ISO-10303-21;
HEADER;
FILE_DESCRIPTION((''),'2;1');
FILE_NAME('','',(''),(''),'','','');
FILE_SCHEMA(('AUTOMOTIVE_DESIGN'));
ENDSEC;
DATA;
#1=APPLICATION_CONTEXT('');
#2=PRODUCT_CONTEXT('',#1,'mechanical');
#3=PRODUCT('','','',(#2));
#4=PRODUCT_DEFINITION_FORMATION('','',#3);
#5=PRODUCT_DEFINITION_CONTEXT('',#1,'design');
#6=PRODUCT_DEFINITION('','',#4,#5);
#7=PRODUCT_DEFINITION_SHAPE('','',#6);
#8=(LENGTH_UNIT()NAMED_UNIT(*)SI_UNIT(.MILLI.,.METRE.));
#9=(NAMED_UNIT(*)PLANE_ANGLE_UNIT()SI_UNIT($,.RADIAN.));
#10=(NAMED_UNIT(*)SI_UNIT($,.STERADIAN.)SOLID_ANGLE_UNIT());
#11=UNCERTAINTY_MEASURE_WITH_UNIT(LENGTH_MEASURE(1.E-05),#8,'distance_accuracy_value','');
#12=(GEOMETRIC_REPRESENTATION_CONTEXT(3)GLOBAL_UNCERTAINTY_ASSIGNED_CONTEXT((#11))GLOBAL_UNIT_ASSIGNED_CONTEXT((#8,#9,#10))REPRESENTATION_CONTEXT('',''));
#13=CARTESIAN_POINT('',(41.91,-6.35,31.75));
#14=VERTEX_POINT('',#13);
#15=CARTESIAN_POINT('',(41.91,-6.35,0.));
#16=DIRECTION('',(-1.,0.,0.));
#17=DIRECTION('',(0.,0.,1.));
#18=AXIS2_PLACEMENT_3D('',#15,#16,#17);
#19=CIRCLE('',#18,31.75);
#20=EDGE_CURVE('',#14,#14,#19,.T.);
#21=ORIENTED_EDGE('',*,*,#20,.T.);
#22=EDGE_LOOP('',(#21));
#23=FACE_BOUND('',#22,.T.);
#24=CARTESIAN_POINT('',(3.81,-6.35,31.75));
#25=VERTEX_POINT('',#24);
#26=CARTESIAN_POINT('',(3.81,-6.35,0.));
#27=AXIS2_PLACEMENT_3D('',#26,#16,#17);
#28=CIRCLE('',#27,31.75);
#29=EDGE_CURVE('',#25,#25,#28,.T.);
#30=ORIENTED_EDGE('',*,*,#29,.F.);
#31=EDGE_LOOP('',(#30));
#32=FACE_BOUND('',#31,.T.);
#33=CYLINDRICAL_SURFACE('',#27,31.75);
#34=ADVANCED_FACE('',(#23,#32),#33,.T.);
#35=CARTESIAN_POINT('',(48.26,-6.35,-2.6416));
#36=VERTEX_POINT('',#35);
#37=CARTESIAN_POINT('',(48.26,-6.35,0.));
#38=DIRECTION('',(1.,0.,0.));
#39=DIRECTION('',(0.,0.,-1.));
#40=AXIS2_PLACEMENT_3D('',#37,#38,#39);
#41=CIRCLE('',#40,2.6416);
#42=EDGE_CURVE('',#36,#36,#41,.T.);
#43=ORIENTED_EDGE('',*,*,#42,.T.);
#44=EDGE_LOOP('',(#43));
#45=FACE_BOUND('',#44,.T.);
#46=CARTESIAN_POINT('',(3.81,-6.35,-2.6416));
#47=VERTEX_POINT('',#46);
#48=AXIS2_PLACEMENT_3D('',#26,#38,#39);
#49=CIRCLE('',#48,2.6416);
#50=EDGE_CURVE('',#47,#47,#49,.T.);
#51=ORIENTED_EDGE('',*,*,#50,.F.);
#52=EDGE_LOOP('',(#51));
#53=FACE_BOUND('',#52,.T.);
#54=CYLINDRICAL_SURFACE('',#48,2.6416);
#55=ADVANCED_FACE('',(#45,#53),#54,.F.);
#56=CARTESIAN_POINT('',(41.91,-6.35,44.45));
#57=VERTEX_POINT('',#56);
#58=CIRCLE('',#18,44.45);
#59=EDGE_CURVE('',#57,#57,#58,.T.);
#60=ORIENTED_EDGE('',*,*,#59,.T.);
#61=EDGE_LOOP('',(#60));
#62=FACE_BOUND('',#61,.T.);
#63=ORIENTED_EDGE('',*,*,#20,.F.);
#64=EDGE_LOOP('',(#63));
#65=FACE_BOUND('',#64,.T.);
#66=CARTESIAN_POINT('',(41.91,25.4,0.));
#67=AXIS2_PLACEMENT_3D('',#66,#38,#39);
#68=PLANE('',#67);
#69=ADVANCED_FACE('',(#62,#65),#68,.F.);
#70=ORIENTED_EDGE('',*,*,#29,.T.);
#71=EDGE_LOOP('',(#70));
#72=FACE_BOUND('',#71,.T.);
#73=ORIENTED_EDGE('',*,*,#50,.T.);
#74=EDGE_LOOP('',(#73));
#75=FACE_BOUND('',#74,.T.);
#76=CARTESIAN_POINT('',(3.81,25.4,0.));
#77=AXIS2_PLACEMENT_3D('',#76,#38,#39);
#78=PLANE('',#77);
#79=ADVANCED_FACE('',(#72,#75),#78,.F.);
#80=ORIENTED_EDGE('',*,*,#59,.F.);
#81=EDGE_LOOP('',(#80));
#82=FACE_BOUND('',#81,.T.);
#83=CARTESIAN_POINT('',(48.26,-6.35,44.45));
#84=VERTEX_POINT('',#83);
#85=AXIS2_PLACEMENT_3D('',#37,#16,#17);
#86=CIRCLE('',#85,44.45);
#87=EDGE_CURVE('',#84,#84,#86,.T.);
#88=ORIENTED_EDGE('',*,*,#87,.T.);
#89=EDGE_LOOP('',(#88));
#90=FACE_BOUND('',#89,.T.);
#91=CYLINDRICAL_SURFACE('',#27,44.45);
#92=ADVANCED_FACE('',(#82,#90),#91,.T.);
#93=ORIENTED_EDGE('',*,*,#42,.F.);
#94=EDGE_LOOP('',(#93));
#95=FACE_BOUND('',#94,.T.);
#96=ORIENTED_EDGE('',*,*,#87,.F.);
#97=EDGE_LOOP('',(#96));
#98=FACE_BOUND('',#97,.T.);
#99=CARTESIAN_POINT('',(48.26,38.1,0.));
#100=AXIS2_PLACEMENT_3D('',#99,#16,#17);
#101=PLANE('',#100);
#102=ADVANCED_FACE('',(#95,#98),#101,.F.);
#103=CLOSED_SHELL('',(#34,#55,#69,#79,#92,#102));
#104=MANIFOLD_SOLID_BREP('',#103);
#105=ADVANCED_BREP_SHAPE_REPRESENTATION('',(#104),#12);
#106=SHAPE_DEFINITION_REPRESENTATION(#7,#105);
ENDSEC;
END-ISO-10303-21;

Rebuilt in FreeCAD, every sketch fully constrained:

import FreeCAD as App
import Part
import Sketcher
from FreeCAD import Vector
Q = App.Units.Quantity

doc = App.newDocument("Part")
body = doc.addObject("PartDesign::Body", "Body")

# Sketch on XY plane
sketch1 = body.newObject("Sketcher::SketchObject", "Sketch")
sketch1.AttachmentSupport = (doc.getObject("XY_Plane"), [""])
sketch1.MapMode = "FlatFace"
sketch1.addGeometry(Part.LineSegment(Vector(41.91, 25.4, 0), Vector(3.81, 25.4, 0)), False)
sketch1.addGeometry(Part.LineSegment(Vector(3.81, 25.4, 0), Vector(3.81, -6.35, 0)), False)
sketch1.addGeometry(Part.LineSegment(Vector(3.81, -6.35, 0), Vector(48.26, -6.35, 0)), False)
sketch1.addGeometry(Part.LineSegment(Vector(48.26, -6.35, 0), Vector(48.26, 38.1, 0)), False)
sketch1.addGeometry(Part.LineSegment(Vector(48.26, 38.1, 0), Vector(41.91, 38.1, 0)), False)
sketch1.addGeometry(Part.LineSegment(Vector(41.91, 38.1, 0), Vector(41.91, 25.4, 0)), False)
sketch1.addGeometry(Part.LineSegment(Vector(3.81, -6.35, 0), Vector(48.26, -6.35, 0)), True)  # axis
sketch1.addConstraint(Sketcher.Constraint("Coincident", 0, 2, 1, 1))
sketch1.addConstraint(Sketcher.Constraint("Coincident", 1, 2, 2, 1))
sketch1.addConstraint(Sketcher.Constraint("Coincident", 2, 2, 3, 1))
sketch1.addConstraint(Sketcher.Constraint("Coincident", 3, 2, 4, 1))
sketch1.addConstraint(Sketcher.Constraint("Coincident", 4, 2, 5, 1))
sketch1.addConstraint(Sketcher.Constraint("Coincident", 5, 2, 0, 1))
sketch1.addConstraint(Sketcher.Constraint("Horizontal", 0))
sketch1.addConstraint(Sketcher.Constraint("Vertical", 1))
sketch1.addConstraint(Sketcher.Constraint("Horizontal", 2))
sketch1.addConstraint(Sketcher.Constraint("Vertical", 3))
sketch1.addConstraint(Sketcher.Constraint("Horizontal", 4))
sketch1.addConstraint(Sketcher.Constraint("Vertical", 5))
sketch1.addConstraint(Sketcher.Constraint("Horizontal", 6))
sketch1.addConstraint(Sketcher.Constraint("Coincident", 6, 1, 1, 2))
sketch1.addConstraint(Sketcher.Constraint("Vertical", 3, 2, 6, 2))
sketch1.addConstraint(Sketcher.Constraint("Equal", 6, 3))
sketch1.addConstraint(Sketcher.Constraint("DistanceX", 0, 2, 0, 1, Q("1.5 in")))
sketch1.addConstraint(Sketcher.Constraint("DistanceY", 5, 2, 5, 1, Q("0.5 in")))
sketch1.addConstraint(Sketcher.Constraint("DistanceY", -1, 1, 0, 2, Q("1 in")))
sketch1.addConstraint(Sketcher.Constraint("DistanceX", 2, 1, 2, 2, Q("1.75 in")))
sketch1.addConstraint(Sketcher.Constraint("DistanceX", -1, 1, 2, 2, Q("1.9 in")))
revolution = body.newObject("PartDesign::Revolution", "Revolution")
revolution.Profile = sketch1
revolution.ReferenceAxis = (sketch1, ["Axis0"])
revolution.Angle = 360

# Sketch on YZ plane
sketch2 = body.newObject("Sketcher::SketchObject", "Sketch001")
sketch2.AttachmentSupport = (doc.getObject("YZ_Plane"), [""])
sketch2.MapMode = "FlatFace"
sketch2.AttachmentOffset = App.Placement(Vector(0, 0, 1.9 * 25.4), App.Rotation())
sketch2.addGeometry(Part.Circle(Vector(-6.35, 0, 0), Vector(0, 0, 1), 2.6416), False)
sketch2.addConstraint(Sketcher.Constraint("PointOnObject", 0, 3, -1))
sketch2.addConstraint(Sketcher.Constraint("Diameter", 0, Q("0.208 in")))
sketch2.addConstraint(Sketcher.Constraint("DistanceX", 0, 3, -1, 1, Q("0.25 in")))
pocket1 = body.newObject("PartDesign::Pocket", "Pocket")
pocket1.Profile = sketch2
pocket1.Type = "ThroughAll"

doc.recompute()
